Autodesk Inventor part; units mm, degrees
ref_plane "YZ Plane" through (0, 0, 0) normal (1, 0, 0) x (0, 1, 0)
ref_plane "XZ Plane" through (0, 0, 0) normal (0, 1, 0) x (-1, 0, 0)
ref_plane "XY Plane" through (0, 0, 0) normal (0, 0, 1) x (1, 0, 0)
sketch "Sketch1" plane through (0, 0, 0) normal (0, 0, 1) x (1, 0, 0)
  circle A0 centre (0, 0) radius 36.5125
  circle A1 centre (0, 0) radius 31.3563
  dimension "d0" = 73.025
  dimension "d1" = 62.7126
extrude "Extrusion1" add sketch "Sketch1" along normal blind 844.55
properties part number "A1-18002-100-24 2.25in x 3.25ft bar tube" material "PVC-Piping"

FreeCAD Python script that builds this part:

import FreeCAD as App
import Part
import Sketcher
from FreeCAD import Vector
Q = App.Units.Quantity

doc = App.newDocument("Part")
body = doc.addObject("PartDesign::Body", "Body")

# Sketch on XY plane
sketch1 = body.newObject("Sketcher::SketchObject", "Sketch")
sketch1.AttachmentSupport = (doc.getObject("XY_Plane"), [""])
sketch1.MapMode = "FlatFace"
sketch1.addGeometry([
    Part.Circle(Vector(0, 0, 0), Vector(0, 0, 1), 37),
    Part.Circle(Vector(0, 0, 0), Vector(0, 0, 1), 31),
], False)
sketch1.addConstraint([
    Sketcher.Constraint("Coincident", 0, 3, -1, 1),
    Sketcher.Constraint("Coincident", 1, 3, -1, 1),
    Sketcher.Constraint("Diameter", 0, Q("2.875 in")),
    Sketcher.Constraint("Diameter", 1, Q("2.469 in")),
])
pad1 = body.newObject("PartDesign::Pad", "Pad")
pad1.Profile = sketch1
pad1.Length = Q("33.25 in")

doc.recompute()
